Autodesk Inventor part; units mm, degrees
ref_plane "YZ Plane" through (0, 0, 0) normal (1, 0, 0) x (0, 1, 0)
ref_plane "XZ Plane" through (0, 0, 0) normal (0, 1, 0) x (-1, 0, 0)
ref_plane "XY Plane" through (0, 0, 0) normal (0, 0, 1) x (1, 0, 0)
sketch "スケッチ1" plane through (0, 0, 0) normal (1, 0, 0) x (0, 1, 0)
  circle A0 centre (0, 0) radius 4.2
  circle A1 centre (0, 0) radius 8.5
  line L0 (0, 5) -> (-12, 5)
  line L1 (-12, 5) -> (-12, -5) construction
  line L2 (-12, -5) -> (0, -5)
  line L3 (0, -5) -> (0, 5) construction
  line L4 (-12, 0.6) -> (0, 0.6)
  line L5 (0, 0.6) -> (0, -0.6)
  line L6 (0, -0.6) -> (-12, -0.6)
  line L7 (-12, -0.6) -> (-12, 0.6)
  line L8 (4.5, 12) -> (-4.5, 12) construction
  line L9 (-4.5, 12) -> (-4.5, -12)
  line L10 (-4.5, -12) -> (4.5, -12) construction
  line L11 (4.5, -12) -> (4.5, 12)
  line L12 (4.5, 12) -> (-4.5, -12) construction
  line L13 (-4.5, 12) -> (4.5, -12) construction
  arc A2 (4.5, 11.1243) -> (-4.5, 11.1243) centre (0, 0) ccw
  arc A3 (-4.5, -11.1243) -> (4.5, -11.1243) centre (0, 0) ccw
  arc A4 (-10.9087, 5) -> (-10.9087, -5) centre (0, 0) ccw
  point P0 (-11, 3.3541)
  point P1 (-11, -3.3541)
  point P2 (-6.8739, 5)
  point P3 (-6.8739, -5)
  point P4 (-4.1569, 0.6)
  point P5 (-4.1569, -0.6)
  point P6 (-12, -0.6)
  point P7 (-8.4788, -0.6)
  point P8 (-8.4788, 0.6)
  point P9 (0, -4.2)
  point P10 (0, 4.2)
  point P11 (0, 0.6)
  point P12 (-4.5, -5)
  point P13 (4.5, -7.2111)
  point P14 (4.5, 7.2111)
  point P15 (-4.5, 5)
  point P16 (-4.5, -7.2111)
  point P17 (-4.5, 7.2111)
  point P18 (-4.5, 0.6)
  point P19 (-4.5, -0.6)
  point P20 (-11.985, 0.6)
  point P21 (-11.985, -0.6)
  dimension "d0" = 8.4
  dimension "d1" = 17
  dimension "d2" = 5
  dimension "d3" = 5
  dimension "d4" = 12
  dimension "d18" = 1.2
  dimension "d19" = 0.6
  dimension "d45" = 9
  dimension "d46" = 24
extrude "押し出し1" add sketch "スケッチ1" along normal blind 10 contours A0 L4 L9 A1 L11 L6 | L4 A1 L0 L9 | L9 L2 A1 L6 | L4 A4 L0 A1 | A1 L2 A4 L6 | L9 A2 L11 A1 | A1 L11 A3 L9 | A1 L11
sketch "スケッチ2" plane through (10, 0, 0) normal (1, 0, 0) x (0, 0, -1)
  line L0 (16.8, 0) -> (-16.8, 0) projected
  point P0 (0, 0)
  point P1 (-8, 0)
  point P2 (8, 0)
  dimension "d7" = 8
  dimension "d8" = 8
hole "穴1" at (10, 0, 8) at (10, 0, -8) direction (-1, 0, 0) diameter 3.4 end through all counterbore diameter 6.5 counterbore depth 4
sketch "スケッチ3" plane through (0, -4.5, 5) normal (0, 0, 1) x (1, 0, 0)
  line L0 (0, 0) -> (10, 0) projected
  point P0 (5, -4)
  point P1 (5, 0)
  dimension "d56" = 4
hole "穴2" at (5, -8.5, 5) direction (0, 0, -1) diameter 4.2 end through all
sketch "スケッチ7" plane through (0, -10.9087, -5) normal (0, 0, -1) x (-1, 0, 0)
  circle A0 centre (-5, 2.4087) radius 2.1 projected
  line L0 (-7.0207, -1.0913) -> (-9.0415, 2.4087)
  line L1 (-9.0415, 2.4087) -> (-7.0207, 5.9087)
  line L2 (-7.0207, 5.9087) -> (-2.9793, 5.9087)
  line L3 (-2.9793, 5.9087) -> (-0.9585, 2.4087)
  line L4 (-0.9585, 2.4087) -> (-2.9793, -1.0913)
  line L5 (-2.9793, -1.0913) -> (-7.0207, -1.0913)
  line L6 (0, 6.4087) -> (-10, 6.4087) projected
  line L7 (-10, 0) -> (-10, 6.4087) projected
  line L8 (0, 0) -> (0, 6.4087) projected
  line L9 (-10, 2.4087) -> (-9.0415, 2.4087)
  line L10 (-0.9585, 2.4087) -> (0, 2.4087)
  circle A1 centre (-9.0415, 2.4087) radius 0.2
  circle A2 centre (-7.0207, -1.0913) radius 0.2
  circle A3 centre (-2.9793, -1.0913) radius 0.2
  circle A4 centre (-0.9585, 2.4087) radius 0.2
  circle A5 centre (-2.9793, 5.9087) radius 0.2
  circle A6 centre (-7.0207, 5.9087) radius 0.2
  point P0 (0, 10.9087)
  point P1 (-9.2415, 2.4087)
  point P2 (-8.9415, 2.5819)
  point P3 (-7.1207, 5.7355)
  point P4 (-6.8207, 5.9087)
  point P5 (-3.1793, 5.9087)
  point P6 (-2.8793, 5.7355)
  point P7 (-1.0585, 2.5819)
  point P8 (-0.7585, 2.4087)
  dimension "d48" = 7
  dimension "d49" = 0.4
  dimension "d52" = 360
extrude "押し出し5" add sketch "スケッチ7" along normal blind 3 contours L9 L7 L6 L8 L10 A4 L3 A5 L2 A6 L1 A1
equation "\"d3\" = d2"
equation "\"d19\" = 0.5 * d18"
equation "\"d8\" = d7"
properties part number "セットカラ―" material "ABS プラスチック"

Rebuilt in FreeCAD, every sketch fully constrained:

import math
import FreeCAD as App
import Part
import Sketcher

V = App.Vector
Q = App.Units.Quantity

doc = App.newDocument("Part")
body = doc.addObject("PartDesign::Body", "Body")

sketch1 = body.newObject("Sketcher::SketchObject", "Sketch")
sketch1.AttachmentSupport = (doc.getObject("YZ_Plane"), [""])
sketch1.MapMode = "FlatFace"
sketch1.addGeometry(Part.ArcOfCircle(Part.Circle(V(0, 0, 0), V(0, 0, 1), 4.2), math.radians(-171.786789), math.radians(171.786789)), False)
sketch1.addGeometry(Part.LineSegment(V(-4.156922, -0.6, 0), V(-11.98498, -0.6, 0)), False)
sketch1.addGeometry(Part.ArcOfCircle(Part.Circle(V(0, 0, 0), V(0, 0, 1), 11.999989), math.radians(-177.134013), math.radians(-155.375658)), False)
sketch1.addGeometry(Part.LineSegment(V(-10.9087, -5, 0), V(-4.5, -5, 0)), False)
sketch1.addGeometry(Part.LineSegment(V(-4.5, -5, 0), V(-4.5, -11.1243, 0)), False)
sketch1.addGeometry(Part.ArcOfCircle(Part.Circle(V(0, 0, 0), V(0, 0, 1), 12.000002), math.radians(-112.024309), math.radians(-67.975691)), False)
sketch1.addGeometry(Part.LineSegment(V(4.5, -11.1243, 0), V(4.5, -7.211103, 0)), False)
sketch1.addGeometry(Part.ArcOfCircle(Part.Circle(V(0, 0, 0), V(0, 0, 1), 8.5), math.radians(-58.034281), math.radians(58.034281)), False)
sketch1.addGeometry(Part.LineSegment(V(4.5, 7.211103, 0), V(4.5, 11.1243, 0)), False)
sketch1.addGeometry(Part.ArcOfCircle(Part.Circle(V(0, 0, 0), V(0, 0, 1), 12.000002), math.radians(67.975691), math.radians(112.024309)), False)
sketch1.addGeometry(Part.LineSegment(V(-4.5, 11.1243, 0), V(-4.5, 5, 0)), False)
sketch1.addGeometry(Part.LineSegment(V(-4.5, 5, 0), V(-10.9087, 5, 0)), False)
sketch1.addGeometry(Part.ArcOfCircle(Part.Circle(V(0, 0, 0), V(0, 0, 1), 11.999989), math.radians(155.375658), math.radians(177.134013)), False)
sketch1.addGeometry(Part.LineSegment(V(-11.98498, 0.6, 0), V(-4.156922, 0.6, 0)), False)
sketch1.addConstraint(Sketcher.Constraint("Coincident", 0, 1, 1, 1))
sketch1.addConstraint(Sketcher.Constraint("Coincident", 1, 2, 2, 1))
sketch1.addConstraint(Sketcher.Constraint("Coincident", 2, 2, 3, 1))
sketch1.addConstraint(Sketcher.Constraint("Coincident", 3, 2, 4, 1))
sketch1.addConstraint(Sketcher.Constraint("Coincident", 4, 2, 5, 1))
sketch1.addConstraint(Sketcher.Constraint("Coincident", 5, 2, 6, 1))
sketch1.addConstraint(Sketcher.Constraint("Coincident", 6, 2, 7, 1))
sketch1.addConstraint(Sketcher.Constraint("Coincident", 7, 2, 8, 1))
sketch1.addConstraint(Sketcher.Constraint("Coincident", 8, 2, 9, 1))
sketch1.addConstraint(Sketcher.Constraint("Coincident", 9, 2, 10, 1))
sketch1.addConstraint(Sketcher.Constraint("Coincident", 10, 2, 11, 1))
sketch1.addConstraint(Sketcher.Constraint("Coincident", 11, 2, 12, 1))
sketch1.addConstraint(Sketcher.Constraint("Coincident", 12, 2, 13, 1))
sketch1.addConstraint(Sketcher.Constraint("Coincident", 13, 2, 0, 2))
sketch1.addConstraint(Sketcher.Constraint("Horizontal", 1))
sketch1.addConstraint(Sketcher.Constraint("Horizontal", 3))
sketch1.addConstraint(Sketcher.Constraint("Vertical", 4))
sketch1.addConstraint(Sketcher.Constraint("Vertical", 6))
sketch1.addConstraint(Sketcher.Constraint("Vertical", 8))
sketch1.addConstraint(Sketcher.Constraint("Vertical", 10))
sketch1.addConstraint(Sketcher.Constraint("Horizontal", 11))
sketch1.addConstraint(Sketcher.Constraint("Horizontal", 13))
sketch1.addConstraint(Sketcher.Constraint("Coincident", 0, 3, -1, 1))
sketch1.addConstraint(Sketcher.Constraint("Coincident", 2, 3, -1, 1))
sketch1.addConstraint(Sketcher.Constraint("Coincident", 5, 3, -1, 1))
sketch1.addConstraint(Sketcher.Constraint("Coincident", 7, 3, -1, 1))
sketch1.addConstraint(Sketcher.Constraint("Coincident", 9, 3, -1, 1))
sketch1.addConstraint(Sketcher.Constraint("Coincident", 12, 3, -1, 1))
sketch1.addConstraint(Sketcher.Constraint("Equal", 2, 5))
sketch1.addConstraint(Sketcher.Constraint("Equal", 5, 9))
sketch1.addConstraint(Sketcher.Constraint("Equal", 9, 12))
sketch1.addConstraint(Sketcher.Constraint("Symmetric", 3, 2, 10, 2, -1))
sketch1.addConstraint(Sketcher.Constraint("Horizontal", 4, 2, 5, 2))
sketch1.addConstraint(Sketcher.Constraint("Horizontal", 8, 2, 9, 2))
sketch1.addConstraint(Sketcher.Constraint("Vertical", 1, 2, 12, 2))
sketch1.addConstraint(Sketcher.Constraint("Radius", 2, Q("12 mm")))
sketch1.addConstraint(Sketcher.Constraint("Radius", 0, Q("4.2 mm")))
sketch1.addConstraint(Sketcher.Constraint("Radius", 7, Q("8.5 mm")))
sketch1.addConstraint(Sketcher.Constraint("DistanceY", 2, 2, -1, 1, Q("5 mm")))
sketch1.addConstraint(Sketcher.Constraint("DistanceX", 4, 2, 5, 2, Q("9 mm")))
sketch1.addConstraint(Sketcher.Constraint("DistanceY", 0, 1, -1, 1, Q("0.6 mm")))
pad1 = body.newObject("PartDesign::Pad", "Pad")
pad1.Profile = sketch1
pad1.Length = 10

sketch2 = body.newObject("Sketcher::SketchObject", "Sketch001")
sketch2.AttachmentSupport = (doc.getObject("YZ_Plane"), [""])
sketch2.MapMode = "FlatFace"
sketch2.AttachmentOffset = App.Placement(V(0, 0, 10), App.Rotation())
sketch2.addGeometry(Part.Circle(V(0, 8, 0), V(0, 0, 1), 1.7), False)
sketch2.addGeometry(Part.Circle(V(0, -8, 0), V(0, 0, 1), 1.7), False)
sketch2.addConstraint(Sketcher.Constraint("Equal", 0, 1))
sketch2.addConstraint(Sketcher.Constraint("Symmetric", 0, 3, 1, 3, -1, 1))
sketch2.addConstraint(Sketcher.Constraint("PointOnObject", 0, 3, -2))
sketch2.addConstraint(Sketcher.Constraint("Diameter", 0, Q("3.4 mm")))
sketch2.addConstraint(Sketcher.Constraint("DistanceY", -1, 1, 0, 3, Q("8 mm")))
doc.recompute()
hole = body.newObject("PartDesign::Hole", "Hole")
hole.Profile = sketch2
hole.ThreadType = "None"
hole.Diameter = 3.4
hole.DepthType = "ThroughAll"
hole.HoleCutType = "Counterbore"
hole.HoleCutDiameter = 6.5
hole.HoleCutDepth = 4

sketch3 = body.newObject("Sketcher::SketchObject", "Sketch002")
sketch3.AttachmentSupport = (doc.getObject("XY_Plane"), [""])
sketch3.MapMode = "FlatFace"
sketch3.AttachmentOffset = App.Placement(V(0, 0, 5), App.Rotation())
sketch3.addGeometry(Part.Circle(V(5, -8.5, 0), V(0, 0, 1), 2.1), False)
sketch3.addConstraint(Sketcher.Constraint("Diameter", 0, Q("4.2 mm")))
sketch3.addConstraint(Sketcher.Constraint("DistanceX", -1, 1, 0, 3, Q("5 mm")))
sketch3.addConstraint(Sketcher.Constraint("DistanceY", 0, 3, -1, 1, Q("8.5 mm")))
doc.recompute()
hole2 = body.newObject("PartDesign::Hole", "Hole001")
hole2.Profile = sketch3
hole2.ThreadType = "None"
hole2.Diameter = 4.2
hole2.DepthType = "ThroughAll"

sketch4 = body.newObject("Sketcher::SketchObject", "Sketch003")
sketch4.AttachmentSupport = (doc.getObject("XY_Plane"), [""])
sketch4.MapMode = "FlatFace"
sketch4.AttachmentOffset = App.Placement(V(0, 0, -5), App.Rotation())
sketch4.addGeometry(Part.LineSegment(V(10, -8.5, 0), V(9.2415, -8.5, 0)), False)
sketch4.addGeometry(Part.ArcOfCircle(Part.Circle(V(9.0415, -8.5, 0), V(0, 0, 1), 0.2), math.radians(0), math.radians(120.000909)), False)
sketch4.addGeometry(Part.LineSegment(V(8.941497, -8.326797, 0), V(7.120703, -5.173203, 0)), False)
sketch4.addGeometry(Part.ArcOfCircle(Part.Circle(V(7.0207, -5, 0), V(0, 0, 1), 0.2), math.radians(-59.999091), math.radians(180)), False)
sketch4.addGeometry(Part.LineSegment(V(6.8207, -5, 0), V(3.1793, -5, 0)), False)
sketch4.addGeometry(Part.ArcOfCircle(Part.Circle(V(2.9793, -5, 0), V(0, 0, 1), 0.2), math.radians(0), math.radians(239.999091)), False)
sketch4.addGeometry(Part.LineSegment(V(2.879297, -5.173203, 0), V(1.058503, -8.326797, 0)), False)
sketch4.addGeometry(Part.ArcOfCircle(Part.Circle(V(0.9585, -8.5, 0), V(0, 0, 1), 0.2), math.radians(59.999091), math.radians(180)), False)
sketch4.addGeometry(Part.LineSegment(V(0.7585, -8.5, 0), V(0, -8.5, 0)), False)
sketch4.addGeometry(Part.LineSegment(V(0, -8.5, 0), V(0, -4.5, 0)), False)
sketch4.addGeometry(Part.LineSegment(V(0, -4.5, 0), V(10, -4.5, 0)), False)
sketch4.addGeometry(Part.LineSegment(V(10, -4.5, 0), V(10, -8.5, 0)), False)
sketch4.addConstraint(Sketcher.Constraint("Coincident", 0, 2, 1, 1))
sketch4.addConstraint(Sketcher.Constraint("Coincident", 1, 2, 2, 1))
sketch4.addConstraint(Sketcher.Constraint("Coincident", 2, 2, 3, 1))
sketch4.addConstraint(Sketcher.Constraint("Coincident", 3, 2, 4, 1))
sketch4.addConstraint(Sketcher.Constraint("Coincident", 4, 2, 5, 1))
sketch4.addConstraint(Sketcher.Constraint("Coincident", 5, 2, 6, 1))
sketch4.addConstraint(Sketcher.Constraint("Coincident", 6, 2, 7, 1))
sketch4.addConstraint(Sketcher.Constraint("Coincident", 7, 2, 8, 1))
sketch4.addConstraint(Sketcher.Constraint("Coincident", 8, 2, 9, 1))
sketch4.addConstraint(Sketcher.Constraint("Coincident", 9, 2, 10, 1))
sketch4.addConstraint(Sketcher.Constraint("Coincident", 10, 2, 11, 1))
sketch4.addConstraint(Sketcher.Constraint("Coincident", 11, 2, 0, 1))
sketch4.addConstraint(Sketcher.Constraint("Horizontal", 0))
sketch4.addConstraint(Sketcher.Constraint("Horizontal", 4))
sketch4.addConstraint(Sketcher.Constraint("Horizontal", 8))
sketch4.addConstraint(Sketcher.Constraint("Vertical", 9))
sketch4.addConstraint(Sketcher.Constraint("Horizontal", 10))
sketch4.addConstraint(Sketcher.Constraint("Vertical", 11))
sketch4.addConstraint(Sketcher.Constraint("Equal", 1, 3))
sketch4.addConstraint(Sketcher.Constraint("Equal", 3, 5))
sketch4.addConstraint(Sketcher.Constraint("Equal", 5, 7))
sketch4.addConstraint(Sketcher.Constraint("PointOnObject", 8, 2, -2))
sketch4.addConstraint(Sketcher.Constraint("Horizontal", 3, 3, 5, 3))
sketch4.addConstraint(Sketcher.Constraint("Horizontal", 1, 3, 7, 3))
sketch4.addConstraint(Sketcher.Constraint("Horizontal", 7, 3, 0, 2))
sketch4.addConstraint(Sketcher.Constraint("Horizontal", 5, 3, 3, 2))
sketch4.addConstraint(Sketcher.Constraint("Horizontal", 2, 2, 5, 2))
sketch4.addConstraint(Sketcher.Constraint("Horizontal", 1, 2, 6, 2))
sketch4.addConstraint(Sketcher.Constraint("Horizontal", 0, 2, 7, 2))
sketch4.addConstraint(Sketcher.Constraint("Equal", 0, 8))
sketch4.addConstraint(Sketcher.Constraint("Equal", 2, 6))
sketch4.addConstraint(Sketcher.Constraint("Radius", 1, Q("0.2 mm")))
sketch4.addConstraint(Sketcher.Constraint("DistanceX", 10, 1, 10, 2, Q("10 mm")))
sketch4.addConstraint(Sketcher.Constraint("DistanceY", 9, 1, 9, 2, Q("4 mm")))
sketch4.addConstraint(Sketcher.Constraint("Angle", 2, Q("120.001 deg")))
sketch4.addConstraint(Sketcher.Constraint("DistanceY", 3, 3, -1, 1, Q("5 mm")))
sketch4.addConstraint(Sketcher.Constraint("DistanceY", 1, 3, -1, 1, Q("8.5 mm")))
sketch4.addConstraint(Sketcher.Constraint("DistanceX", 1, 2, 1, 3, Q("0.1 mm")))
sketch4.addConstraint(Sketcher.Constraint("DistanceX", 3, 3, 2, 2, Q("0.1 mm")))
sketch4.addConstraint(Sketcher.Constraint("DistanceX", 0, 2, 0, 1, Q("0.7585 mm")))
pad2 = body.newObject("PartDesign::Pad", "Pad001")
pad2.Profile = sketch4
pad2.Length = 3
pad2.Reversed = True

doc.recompute()
